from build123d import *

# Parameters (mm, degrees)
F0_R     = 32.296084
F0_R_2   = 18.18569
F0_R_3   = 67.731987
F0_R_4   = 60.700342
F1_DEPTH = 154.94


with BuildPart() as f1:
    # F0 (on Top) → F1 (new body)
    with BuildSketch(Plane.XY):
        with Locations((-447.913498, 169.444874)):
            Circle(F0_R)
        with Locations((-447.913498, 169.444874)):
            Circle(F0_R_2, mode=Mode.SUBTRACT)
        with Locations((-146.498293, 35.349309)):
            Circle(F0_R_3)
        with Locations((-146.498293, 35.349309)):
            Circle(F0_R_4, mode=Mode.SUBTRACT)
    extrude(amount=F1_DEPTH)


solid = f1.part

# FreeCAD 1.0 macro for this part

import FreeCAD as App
import Part
import Sketcher
from FreeCAD import Vector

doc = App.newDocument("Part")
params = doc.addObject("Spreadsheet::Sheet", "Params")
for row, (alias, value) in enumerate([
    ("pad1_length", "6.1 in"),
], start=1):
    params.set(f"A{row}", alias)
    params.set(f"B{row}", "=" + value)
    params.setAlias(f"B{row}", alias)

body = doc.addObject("PartDesign::Body", "Body")
body.AllowCompound = True

# Sketch on XY plane
sketch1 = body.newObject("Sketcher::SketchObject", "Sketch")
sketch1.AttachmentSupport = (doc.getObject("XY_Plane"), [""])
sketch1.MapMode = "FlatFace"
sketch1.addGeometry([
    Part.Circle(Vector(-448, 169, 0), Vector(0, 0, 1), 32),
    Part.Circle(Vector(-448, 169, 0), Vector(0, 0, 1), 18),
    Part.Circle(Vector(-146, 35, 0), Vector(0, 0, 1), 68),
    Part.Circle(Vector(-146, 35, 0), Vector(0, 0, 1), 61),
], False)
sketch1.addConstraint([
    Sketcher.Constraint("Coincident", 1, 3, 0, 3),
    Sketcher.Constraint("Coincident", 3, 3, 2, 3),
    Sketcher.Constraint("Diameter", 0, 64.592168),
    Sketcher.Constraint("Diameter", 1, 36.37138),
    Sketcher.Constraint("Diameter", 2, 135.463974),
    Sketcher.Constraint("Diameter", 3, 121.400684),
    Sketcher.Constraint("DistanceX", 0, 3, -1, 1, 447.913498),
    Sketcher.Constraint("DistanceY", -1, 1, 2, 3, 35.349309),
    Sketcher.Constraint("DistanceY", -1, 1, 0, 3, 169.444874),
    Sketcher.Constraint("DistanceX", 2, 3, -1, 1, 146.498293),
])
pad1 = body.newObject("PartDesign::Pad", "Pad")
pad1.Profile = sketch1
pad1.setExpression("Length", "Params.pad1_length")

doc.recompute()
